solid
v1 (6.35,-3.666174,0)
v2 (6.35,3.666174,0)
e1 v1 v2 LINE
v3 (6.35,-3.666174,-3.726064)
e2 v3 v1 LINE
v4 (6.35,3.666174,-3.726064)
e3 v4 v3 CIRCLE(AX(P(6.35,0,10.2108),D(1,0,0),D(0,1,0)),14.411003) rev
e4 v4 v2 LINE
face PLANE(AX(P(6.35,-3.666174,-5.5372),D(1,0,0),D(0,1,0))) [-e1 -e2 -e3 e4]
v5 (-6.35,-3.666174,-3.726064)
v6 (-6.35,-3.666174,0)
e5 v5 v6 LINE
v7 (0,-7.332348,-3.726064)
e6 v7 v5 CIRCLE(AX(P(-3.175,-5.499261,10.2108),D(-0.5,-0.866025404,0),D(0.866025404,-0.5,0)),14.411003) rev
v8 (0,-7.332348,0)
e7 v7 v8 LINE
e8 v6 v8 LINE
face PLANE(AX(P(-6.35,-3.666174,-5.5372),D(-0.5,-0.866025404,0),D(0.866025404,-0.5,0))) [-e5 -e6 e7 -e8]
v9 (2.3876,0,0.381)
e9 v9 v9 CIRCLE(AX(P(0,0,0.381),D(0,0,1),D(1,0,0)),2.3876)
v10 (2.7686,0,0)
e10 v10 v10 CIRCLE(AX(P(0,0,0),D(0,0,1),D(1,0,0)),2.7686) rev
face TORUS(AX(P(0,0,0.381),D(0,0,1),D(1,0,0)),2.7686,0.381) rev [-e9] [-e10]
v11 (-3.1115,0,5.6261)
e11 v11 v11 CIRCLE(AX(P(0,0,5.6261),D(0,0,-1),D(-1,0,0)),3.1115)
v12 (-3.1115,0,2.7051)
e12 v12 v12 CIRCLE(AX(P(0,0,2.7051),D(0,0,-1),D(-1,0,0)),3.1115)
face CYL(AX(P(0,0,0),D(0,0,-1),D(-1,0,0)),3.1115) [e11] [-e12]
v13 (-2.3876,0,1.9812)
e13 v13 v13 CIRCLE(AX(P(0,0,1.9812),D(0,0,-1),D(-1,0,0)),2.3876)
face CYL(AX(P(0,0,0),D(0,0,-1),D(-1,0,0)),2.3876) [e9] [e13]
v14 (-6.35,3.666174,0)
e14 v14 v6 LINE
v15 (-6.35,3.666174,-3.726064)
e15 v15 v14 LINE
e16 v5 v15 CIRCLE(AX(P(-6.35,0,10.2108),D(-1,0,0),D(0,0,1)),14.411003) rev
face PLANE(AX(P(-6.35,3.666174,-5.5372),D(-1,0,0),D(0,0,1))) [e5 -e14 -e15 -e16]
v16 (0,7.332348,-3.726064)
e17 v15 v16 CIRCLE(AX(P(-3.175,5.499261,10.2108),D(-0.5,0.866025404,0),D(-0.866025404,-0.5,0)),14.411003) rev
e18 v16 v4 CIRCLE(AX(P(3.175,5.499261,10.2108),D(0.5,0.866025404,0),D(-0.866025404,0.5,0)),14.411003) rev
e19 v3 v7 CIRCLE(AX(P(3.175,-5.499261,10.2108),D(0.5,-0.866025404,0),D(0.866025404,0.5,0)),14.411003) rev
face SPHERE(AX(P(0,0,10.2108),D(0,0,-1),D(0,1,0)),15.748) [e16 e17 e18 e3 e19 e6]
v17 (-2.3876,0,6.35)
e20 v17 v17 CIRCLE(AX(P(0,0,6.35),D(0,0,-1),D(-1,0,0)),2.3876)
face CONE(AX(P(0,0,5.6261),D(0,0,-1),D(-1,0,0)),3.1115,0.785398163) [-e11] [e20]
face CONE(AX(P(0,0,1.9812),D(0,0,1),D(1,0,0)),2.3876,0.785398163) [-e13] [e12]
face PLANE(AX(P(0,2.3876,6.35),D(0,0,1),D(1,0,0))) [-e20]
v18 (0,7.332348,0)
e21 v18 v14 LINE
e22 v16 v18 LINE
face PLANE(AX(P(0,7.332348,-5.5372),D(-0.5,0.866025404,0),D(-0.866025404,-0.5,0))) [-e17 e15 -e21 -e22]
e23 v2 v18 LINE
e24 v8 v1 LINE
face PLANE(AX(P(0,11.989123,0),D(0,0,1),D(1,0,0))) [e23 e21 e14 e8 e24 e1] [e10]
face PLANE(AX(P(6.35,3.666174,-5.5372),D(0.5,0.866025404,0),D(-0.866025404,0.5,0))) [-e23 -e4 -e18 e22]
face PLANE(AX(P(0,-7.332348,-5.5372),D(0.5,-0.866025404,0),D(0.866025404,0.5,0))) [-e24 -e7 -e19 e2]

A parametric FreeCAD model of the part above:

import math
import FreeCAD as App
import Part
import Sketcher
from FreeCAD import Vector
Q = App.Units.Quantity


def edges_at(feature, points):
    """Names of the edges that pass closest to the given points."""
    edges = feature.Shape.Edges
    near = lambda p: min(range(len(edges)), key=lambda i: edges[i].distToShape(Part.Vertex(*p))[0])
    return sorted({f"Edge{near(p) + 1}" for p in points})

doc = App.newDocument("Part")
params = doc.addObject("Spreadsheet::Sheet", "Params")
for row, (alias, value) in enumerate([
    ("sketch1_radius", "0.62 in"),
    ("sketch1_width", "0.094 in"),
    ("sketch1_height", "0.078 in"),
    ("sketch1_height2", "0.115 in"),
    ("sketch1_height3", "0.468 in"),
    ("revolution_angle", "360 deg"),
    ("fillet_radius", "0.015 in"),
], start=1):
    params.set(f"A{row}", alias)
    params.set(f"B{row}", "=" + value)
    params.setAlias(f"B{row}", alias)

body = doc.addObject("PartDesign::Body", "Body")

sketch1 = doc.addObject("Sketcher::SketchObject", "Sketch")
body.addObject(sketch1)
sketch1.AttachmentSupport = (doc.YZ_Plane, [""])
sketch1.MapMode = "FlatFace"
sketch1.addGeometry([
    Part.LineSegment(Vector(12, 0, 0), Vector(2.4, 0, 0)),
    Part.LineSegment(Vector(2.4, 0, 0), Vector(2.4, 2, 0)),
    Part.LineSegment(Vector(2.4, 2, 0), Vector(3.1, 2.7, 0)),
    Part.LineSegment(Vector(3.1, 2.7, 0), Vector(3.1, 5.6, 0)),
    Part.LineSegment(Vector(3.1, 5.6, 0), Vector(2.4, 6.3, 0)),
    Part.LineSegment(Vector(2.4, 6.3, 0), Vector(0, 6.3, 0)),
    Part.LineSegment(Vector(0, 6.3, 0), Vector(0, -5.5, 0)),
    Part.ArcOfCircle(Part.Circle(Vector(0, 10.2, 0), Vector(0, 0, 1), 15.7), math.radians(-90), math.radians(-40)),
], False)
sketch1.addConstraint([
    Sketcher.Constraint("Coincident", 0, 2, 1, 1),
    Sketcher.Constraint("Coincident", 1, 2, 2, 1),
    Sketcher.Constraint("Coincident", 2, 2, 3, 1),
    Sketcher.Constraint("Coincident", 3, 2, 4, 1),
    Sketcher.Constraint("Coincident", 4, 2, 5, 1),
    Sketcher.Constraint("Coincident", 5, 2, 6, 1),
    Sketcher.Constraint("Coincident", 6, 2, 7, 1),
    Sketcher.Constraint("Coincident", 7, 2, 0, 1),
    Sketcher.Constraint("Horizontal", 0),
    Sketcher.Constraint("Vertical", 1),
    Sketcher.Constraint("Vertical", 3),
    Sketcher.Constraint("Horizontal", 5),
    Sketcher.Constraint("Vertical", 6),
    Sketcher.Constraint("PointOnObject", 7, 3, -2),
    Sketcher.Constraint("PointOnObject", 0, 2, -1),
    Sketcher.Constraint("PointOnObject", 5, 2, -2),
    Sketcher.Constraint("Perpendicular", 2, 4),
    Sketcher.Constraint("Vertical", 1, 2, 4, 2),
    Sketcher.Constraint("Equal", 2, 4),
    Sketcher.Constraint("Radius", 7, Q("0.62 in")),
    Sketcher.Constraint("DistanceX", 5, 2, 5, 1, Q("0.094 in")),
    Sketcher.Constraint("DistanceY", 1, 1, 1, 2, Q("0.078 in")),
    Sketcher.Constraint("DistanceY", 3, 1, 3, 2, Q("0.115 in")),
    Sketcher.Constraint("DistanceY", 6, 2, 6, 1, Q("0.468 in")),
    Sketcher.Constraint("DistanceY", -1, 1, 4, 2, Q("0.25 in")),
])
sketch1.setExpression("Constraints[19]", "Params.sketch1_radius")
sketch1.setExpression("Constraints[20]", "Params.sketch1_width")
sketch1.setExpression("Constraints[21]", "Params.sketch1_height")
sketch1.setExpression("Constraints[22]", "Params.sketch1_height2")
sketch1.setExpression("Constraints[23]", "Params.sketch1_height3")
revolution = doc.addObject("PartDesign::Revolution", "Revolution")
body.addObject(revolution)
revolution.Profile = sketch1
revolution.ReferenceAxis = (sketch1, ["V_Axis"])
revolution.setExpression("Angle", "Params.revolution_angle")

sketch2 = doc.addObject("Sketcher::SketchObject", "Sketch001")
body.addObject(sketch2)
sketch2.AttachmentSupport = (doc.XY_Plane, [""])
sketch2.MapMode = "FlatFace"
sketch2.addGeometry([
    Part.LineSegment(Vector(-17, 17, 0), Vector(-17, -17, 0)),
    Part.LineSegment(Vector(-17, -17, 0), Vector(17, -17, 0)),
    Part.LineSegment(Vector(17, -17, 0), Vector(17, 17, 0)),
    Part.LineSegment(Vector(17, 17, 0), Vector(-17, 17, 0)),
    Part.LineSegment(Vector(-6, 4, 0), Vector(0, 7, 0)),
    Part.LineSegment(Vector(0, 7, 0), Vector(6, 4, 0)),
    Part.LineSegment(Vector(6, 4, 0), Vector(6, -4, 0)),
    Part.LineSegment(Vector(6, -4, 0), Vector(0, -7, 0)),
    Part.LineSegment(Vector(0, -7, 0), Vector(-6, -4, 0)),
    Part.LineSegment(Vector(-6, -4, 0), Vector(-6, 4, 0)),
], False)
sketch2.addConstraint([
    Sketcher.Constraint("Coincident", 0, 2, 1, 1),
    Sketcher.Constraint("Coincident", 1, 2, 2, 1),
    Sketcher.Constraint("Coincident", 2, 2, 3, 1),
    Sketcher.Constraint("Coincident", 3, 2, 0, 1),
    Sketcher.Constraint("Coincident", 4, 2, 5, 1),
    Sketcher.Constraint("Coincident", 5, 2, 6, 1),
    Sketcher.Constraint("Coincident", 6, 2, 7, 1),
    Sketcher.Constraint("Coincident", 7, 2, 8, 1),
    Sketcher.Constraint("Coincident", 8, 2, 9, 1),
    Sketcher.Constraint("Coincident", 9, 2, 4, 1),
    Sketcher.Constraint("Vertical", 0),
    Sketcher.Constraint("Horizontal", 1),
    Sketcher.Constraint("Vertical", 2),
    Sketcher.Constraint("Horizontal", 3),
    Sketcher.Constraint("Vertical", 6),
    Sketcher.Constraint("Vertical", 9),
    Sketcher.Constraint("Symmetric", 0, 2, 2, 2, -1, 1),
    Sketcher.Constraint("Symmetric", 4, 2, 7, 2, -1, 1),
    Sketcher.Constraint("Symmetric", 5, 2, 8, 2, -1, 1),
    Sketcher.Constraint("PointOnObject", 4, 2, -2),
    Sketcher.Constraint("Parallel", 4, 7),
    Sketcher.Constraint("Horizontal", 6, 2, 8, 2),
    Sketcher.Constraint("Equal", 3, 0),
    Sketcher.Constraint("Angle", 4, Q("30 deg")),
    Sketcher.Constraint("DistanceX", 8, 2, 6, 2, Q("0.5 in")),
    Sketcher.Constraint("DistanceX", 1, 1, 1, 2, 33.164),
    Sketcher.Constraint("DistanceY", 6, 2, 6, 1, 7.332348),
])
pocket1 = doc.addObject("PartDesign::Pocket", "Pocket")
body.addObject(pocket1)
pocket1.Profile = sketch2
pocket1.Type = "ThroughAll"
doc.recompute()

fillet = doc.addObject("PartDesign::Fillet", "Fillet")
body.addObject(fillet)
fillet.Base = (pocket1, edges_at(pocket1, [(2.388, 0, 0)]))
fillet.setExpression("Radius", "Params.fillet_radius")

doc.recompute()
